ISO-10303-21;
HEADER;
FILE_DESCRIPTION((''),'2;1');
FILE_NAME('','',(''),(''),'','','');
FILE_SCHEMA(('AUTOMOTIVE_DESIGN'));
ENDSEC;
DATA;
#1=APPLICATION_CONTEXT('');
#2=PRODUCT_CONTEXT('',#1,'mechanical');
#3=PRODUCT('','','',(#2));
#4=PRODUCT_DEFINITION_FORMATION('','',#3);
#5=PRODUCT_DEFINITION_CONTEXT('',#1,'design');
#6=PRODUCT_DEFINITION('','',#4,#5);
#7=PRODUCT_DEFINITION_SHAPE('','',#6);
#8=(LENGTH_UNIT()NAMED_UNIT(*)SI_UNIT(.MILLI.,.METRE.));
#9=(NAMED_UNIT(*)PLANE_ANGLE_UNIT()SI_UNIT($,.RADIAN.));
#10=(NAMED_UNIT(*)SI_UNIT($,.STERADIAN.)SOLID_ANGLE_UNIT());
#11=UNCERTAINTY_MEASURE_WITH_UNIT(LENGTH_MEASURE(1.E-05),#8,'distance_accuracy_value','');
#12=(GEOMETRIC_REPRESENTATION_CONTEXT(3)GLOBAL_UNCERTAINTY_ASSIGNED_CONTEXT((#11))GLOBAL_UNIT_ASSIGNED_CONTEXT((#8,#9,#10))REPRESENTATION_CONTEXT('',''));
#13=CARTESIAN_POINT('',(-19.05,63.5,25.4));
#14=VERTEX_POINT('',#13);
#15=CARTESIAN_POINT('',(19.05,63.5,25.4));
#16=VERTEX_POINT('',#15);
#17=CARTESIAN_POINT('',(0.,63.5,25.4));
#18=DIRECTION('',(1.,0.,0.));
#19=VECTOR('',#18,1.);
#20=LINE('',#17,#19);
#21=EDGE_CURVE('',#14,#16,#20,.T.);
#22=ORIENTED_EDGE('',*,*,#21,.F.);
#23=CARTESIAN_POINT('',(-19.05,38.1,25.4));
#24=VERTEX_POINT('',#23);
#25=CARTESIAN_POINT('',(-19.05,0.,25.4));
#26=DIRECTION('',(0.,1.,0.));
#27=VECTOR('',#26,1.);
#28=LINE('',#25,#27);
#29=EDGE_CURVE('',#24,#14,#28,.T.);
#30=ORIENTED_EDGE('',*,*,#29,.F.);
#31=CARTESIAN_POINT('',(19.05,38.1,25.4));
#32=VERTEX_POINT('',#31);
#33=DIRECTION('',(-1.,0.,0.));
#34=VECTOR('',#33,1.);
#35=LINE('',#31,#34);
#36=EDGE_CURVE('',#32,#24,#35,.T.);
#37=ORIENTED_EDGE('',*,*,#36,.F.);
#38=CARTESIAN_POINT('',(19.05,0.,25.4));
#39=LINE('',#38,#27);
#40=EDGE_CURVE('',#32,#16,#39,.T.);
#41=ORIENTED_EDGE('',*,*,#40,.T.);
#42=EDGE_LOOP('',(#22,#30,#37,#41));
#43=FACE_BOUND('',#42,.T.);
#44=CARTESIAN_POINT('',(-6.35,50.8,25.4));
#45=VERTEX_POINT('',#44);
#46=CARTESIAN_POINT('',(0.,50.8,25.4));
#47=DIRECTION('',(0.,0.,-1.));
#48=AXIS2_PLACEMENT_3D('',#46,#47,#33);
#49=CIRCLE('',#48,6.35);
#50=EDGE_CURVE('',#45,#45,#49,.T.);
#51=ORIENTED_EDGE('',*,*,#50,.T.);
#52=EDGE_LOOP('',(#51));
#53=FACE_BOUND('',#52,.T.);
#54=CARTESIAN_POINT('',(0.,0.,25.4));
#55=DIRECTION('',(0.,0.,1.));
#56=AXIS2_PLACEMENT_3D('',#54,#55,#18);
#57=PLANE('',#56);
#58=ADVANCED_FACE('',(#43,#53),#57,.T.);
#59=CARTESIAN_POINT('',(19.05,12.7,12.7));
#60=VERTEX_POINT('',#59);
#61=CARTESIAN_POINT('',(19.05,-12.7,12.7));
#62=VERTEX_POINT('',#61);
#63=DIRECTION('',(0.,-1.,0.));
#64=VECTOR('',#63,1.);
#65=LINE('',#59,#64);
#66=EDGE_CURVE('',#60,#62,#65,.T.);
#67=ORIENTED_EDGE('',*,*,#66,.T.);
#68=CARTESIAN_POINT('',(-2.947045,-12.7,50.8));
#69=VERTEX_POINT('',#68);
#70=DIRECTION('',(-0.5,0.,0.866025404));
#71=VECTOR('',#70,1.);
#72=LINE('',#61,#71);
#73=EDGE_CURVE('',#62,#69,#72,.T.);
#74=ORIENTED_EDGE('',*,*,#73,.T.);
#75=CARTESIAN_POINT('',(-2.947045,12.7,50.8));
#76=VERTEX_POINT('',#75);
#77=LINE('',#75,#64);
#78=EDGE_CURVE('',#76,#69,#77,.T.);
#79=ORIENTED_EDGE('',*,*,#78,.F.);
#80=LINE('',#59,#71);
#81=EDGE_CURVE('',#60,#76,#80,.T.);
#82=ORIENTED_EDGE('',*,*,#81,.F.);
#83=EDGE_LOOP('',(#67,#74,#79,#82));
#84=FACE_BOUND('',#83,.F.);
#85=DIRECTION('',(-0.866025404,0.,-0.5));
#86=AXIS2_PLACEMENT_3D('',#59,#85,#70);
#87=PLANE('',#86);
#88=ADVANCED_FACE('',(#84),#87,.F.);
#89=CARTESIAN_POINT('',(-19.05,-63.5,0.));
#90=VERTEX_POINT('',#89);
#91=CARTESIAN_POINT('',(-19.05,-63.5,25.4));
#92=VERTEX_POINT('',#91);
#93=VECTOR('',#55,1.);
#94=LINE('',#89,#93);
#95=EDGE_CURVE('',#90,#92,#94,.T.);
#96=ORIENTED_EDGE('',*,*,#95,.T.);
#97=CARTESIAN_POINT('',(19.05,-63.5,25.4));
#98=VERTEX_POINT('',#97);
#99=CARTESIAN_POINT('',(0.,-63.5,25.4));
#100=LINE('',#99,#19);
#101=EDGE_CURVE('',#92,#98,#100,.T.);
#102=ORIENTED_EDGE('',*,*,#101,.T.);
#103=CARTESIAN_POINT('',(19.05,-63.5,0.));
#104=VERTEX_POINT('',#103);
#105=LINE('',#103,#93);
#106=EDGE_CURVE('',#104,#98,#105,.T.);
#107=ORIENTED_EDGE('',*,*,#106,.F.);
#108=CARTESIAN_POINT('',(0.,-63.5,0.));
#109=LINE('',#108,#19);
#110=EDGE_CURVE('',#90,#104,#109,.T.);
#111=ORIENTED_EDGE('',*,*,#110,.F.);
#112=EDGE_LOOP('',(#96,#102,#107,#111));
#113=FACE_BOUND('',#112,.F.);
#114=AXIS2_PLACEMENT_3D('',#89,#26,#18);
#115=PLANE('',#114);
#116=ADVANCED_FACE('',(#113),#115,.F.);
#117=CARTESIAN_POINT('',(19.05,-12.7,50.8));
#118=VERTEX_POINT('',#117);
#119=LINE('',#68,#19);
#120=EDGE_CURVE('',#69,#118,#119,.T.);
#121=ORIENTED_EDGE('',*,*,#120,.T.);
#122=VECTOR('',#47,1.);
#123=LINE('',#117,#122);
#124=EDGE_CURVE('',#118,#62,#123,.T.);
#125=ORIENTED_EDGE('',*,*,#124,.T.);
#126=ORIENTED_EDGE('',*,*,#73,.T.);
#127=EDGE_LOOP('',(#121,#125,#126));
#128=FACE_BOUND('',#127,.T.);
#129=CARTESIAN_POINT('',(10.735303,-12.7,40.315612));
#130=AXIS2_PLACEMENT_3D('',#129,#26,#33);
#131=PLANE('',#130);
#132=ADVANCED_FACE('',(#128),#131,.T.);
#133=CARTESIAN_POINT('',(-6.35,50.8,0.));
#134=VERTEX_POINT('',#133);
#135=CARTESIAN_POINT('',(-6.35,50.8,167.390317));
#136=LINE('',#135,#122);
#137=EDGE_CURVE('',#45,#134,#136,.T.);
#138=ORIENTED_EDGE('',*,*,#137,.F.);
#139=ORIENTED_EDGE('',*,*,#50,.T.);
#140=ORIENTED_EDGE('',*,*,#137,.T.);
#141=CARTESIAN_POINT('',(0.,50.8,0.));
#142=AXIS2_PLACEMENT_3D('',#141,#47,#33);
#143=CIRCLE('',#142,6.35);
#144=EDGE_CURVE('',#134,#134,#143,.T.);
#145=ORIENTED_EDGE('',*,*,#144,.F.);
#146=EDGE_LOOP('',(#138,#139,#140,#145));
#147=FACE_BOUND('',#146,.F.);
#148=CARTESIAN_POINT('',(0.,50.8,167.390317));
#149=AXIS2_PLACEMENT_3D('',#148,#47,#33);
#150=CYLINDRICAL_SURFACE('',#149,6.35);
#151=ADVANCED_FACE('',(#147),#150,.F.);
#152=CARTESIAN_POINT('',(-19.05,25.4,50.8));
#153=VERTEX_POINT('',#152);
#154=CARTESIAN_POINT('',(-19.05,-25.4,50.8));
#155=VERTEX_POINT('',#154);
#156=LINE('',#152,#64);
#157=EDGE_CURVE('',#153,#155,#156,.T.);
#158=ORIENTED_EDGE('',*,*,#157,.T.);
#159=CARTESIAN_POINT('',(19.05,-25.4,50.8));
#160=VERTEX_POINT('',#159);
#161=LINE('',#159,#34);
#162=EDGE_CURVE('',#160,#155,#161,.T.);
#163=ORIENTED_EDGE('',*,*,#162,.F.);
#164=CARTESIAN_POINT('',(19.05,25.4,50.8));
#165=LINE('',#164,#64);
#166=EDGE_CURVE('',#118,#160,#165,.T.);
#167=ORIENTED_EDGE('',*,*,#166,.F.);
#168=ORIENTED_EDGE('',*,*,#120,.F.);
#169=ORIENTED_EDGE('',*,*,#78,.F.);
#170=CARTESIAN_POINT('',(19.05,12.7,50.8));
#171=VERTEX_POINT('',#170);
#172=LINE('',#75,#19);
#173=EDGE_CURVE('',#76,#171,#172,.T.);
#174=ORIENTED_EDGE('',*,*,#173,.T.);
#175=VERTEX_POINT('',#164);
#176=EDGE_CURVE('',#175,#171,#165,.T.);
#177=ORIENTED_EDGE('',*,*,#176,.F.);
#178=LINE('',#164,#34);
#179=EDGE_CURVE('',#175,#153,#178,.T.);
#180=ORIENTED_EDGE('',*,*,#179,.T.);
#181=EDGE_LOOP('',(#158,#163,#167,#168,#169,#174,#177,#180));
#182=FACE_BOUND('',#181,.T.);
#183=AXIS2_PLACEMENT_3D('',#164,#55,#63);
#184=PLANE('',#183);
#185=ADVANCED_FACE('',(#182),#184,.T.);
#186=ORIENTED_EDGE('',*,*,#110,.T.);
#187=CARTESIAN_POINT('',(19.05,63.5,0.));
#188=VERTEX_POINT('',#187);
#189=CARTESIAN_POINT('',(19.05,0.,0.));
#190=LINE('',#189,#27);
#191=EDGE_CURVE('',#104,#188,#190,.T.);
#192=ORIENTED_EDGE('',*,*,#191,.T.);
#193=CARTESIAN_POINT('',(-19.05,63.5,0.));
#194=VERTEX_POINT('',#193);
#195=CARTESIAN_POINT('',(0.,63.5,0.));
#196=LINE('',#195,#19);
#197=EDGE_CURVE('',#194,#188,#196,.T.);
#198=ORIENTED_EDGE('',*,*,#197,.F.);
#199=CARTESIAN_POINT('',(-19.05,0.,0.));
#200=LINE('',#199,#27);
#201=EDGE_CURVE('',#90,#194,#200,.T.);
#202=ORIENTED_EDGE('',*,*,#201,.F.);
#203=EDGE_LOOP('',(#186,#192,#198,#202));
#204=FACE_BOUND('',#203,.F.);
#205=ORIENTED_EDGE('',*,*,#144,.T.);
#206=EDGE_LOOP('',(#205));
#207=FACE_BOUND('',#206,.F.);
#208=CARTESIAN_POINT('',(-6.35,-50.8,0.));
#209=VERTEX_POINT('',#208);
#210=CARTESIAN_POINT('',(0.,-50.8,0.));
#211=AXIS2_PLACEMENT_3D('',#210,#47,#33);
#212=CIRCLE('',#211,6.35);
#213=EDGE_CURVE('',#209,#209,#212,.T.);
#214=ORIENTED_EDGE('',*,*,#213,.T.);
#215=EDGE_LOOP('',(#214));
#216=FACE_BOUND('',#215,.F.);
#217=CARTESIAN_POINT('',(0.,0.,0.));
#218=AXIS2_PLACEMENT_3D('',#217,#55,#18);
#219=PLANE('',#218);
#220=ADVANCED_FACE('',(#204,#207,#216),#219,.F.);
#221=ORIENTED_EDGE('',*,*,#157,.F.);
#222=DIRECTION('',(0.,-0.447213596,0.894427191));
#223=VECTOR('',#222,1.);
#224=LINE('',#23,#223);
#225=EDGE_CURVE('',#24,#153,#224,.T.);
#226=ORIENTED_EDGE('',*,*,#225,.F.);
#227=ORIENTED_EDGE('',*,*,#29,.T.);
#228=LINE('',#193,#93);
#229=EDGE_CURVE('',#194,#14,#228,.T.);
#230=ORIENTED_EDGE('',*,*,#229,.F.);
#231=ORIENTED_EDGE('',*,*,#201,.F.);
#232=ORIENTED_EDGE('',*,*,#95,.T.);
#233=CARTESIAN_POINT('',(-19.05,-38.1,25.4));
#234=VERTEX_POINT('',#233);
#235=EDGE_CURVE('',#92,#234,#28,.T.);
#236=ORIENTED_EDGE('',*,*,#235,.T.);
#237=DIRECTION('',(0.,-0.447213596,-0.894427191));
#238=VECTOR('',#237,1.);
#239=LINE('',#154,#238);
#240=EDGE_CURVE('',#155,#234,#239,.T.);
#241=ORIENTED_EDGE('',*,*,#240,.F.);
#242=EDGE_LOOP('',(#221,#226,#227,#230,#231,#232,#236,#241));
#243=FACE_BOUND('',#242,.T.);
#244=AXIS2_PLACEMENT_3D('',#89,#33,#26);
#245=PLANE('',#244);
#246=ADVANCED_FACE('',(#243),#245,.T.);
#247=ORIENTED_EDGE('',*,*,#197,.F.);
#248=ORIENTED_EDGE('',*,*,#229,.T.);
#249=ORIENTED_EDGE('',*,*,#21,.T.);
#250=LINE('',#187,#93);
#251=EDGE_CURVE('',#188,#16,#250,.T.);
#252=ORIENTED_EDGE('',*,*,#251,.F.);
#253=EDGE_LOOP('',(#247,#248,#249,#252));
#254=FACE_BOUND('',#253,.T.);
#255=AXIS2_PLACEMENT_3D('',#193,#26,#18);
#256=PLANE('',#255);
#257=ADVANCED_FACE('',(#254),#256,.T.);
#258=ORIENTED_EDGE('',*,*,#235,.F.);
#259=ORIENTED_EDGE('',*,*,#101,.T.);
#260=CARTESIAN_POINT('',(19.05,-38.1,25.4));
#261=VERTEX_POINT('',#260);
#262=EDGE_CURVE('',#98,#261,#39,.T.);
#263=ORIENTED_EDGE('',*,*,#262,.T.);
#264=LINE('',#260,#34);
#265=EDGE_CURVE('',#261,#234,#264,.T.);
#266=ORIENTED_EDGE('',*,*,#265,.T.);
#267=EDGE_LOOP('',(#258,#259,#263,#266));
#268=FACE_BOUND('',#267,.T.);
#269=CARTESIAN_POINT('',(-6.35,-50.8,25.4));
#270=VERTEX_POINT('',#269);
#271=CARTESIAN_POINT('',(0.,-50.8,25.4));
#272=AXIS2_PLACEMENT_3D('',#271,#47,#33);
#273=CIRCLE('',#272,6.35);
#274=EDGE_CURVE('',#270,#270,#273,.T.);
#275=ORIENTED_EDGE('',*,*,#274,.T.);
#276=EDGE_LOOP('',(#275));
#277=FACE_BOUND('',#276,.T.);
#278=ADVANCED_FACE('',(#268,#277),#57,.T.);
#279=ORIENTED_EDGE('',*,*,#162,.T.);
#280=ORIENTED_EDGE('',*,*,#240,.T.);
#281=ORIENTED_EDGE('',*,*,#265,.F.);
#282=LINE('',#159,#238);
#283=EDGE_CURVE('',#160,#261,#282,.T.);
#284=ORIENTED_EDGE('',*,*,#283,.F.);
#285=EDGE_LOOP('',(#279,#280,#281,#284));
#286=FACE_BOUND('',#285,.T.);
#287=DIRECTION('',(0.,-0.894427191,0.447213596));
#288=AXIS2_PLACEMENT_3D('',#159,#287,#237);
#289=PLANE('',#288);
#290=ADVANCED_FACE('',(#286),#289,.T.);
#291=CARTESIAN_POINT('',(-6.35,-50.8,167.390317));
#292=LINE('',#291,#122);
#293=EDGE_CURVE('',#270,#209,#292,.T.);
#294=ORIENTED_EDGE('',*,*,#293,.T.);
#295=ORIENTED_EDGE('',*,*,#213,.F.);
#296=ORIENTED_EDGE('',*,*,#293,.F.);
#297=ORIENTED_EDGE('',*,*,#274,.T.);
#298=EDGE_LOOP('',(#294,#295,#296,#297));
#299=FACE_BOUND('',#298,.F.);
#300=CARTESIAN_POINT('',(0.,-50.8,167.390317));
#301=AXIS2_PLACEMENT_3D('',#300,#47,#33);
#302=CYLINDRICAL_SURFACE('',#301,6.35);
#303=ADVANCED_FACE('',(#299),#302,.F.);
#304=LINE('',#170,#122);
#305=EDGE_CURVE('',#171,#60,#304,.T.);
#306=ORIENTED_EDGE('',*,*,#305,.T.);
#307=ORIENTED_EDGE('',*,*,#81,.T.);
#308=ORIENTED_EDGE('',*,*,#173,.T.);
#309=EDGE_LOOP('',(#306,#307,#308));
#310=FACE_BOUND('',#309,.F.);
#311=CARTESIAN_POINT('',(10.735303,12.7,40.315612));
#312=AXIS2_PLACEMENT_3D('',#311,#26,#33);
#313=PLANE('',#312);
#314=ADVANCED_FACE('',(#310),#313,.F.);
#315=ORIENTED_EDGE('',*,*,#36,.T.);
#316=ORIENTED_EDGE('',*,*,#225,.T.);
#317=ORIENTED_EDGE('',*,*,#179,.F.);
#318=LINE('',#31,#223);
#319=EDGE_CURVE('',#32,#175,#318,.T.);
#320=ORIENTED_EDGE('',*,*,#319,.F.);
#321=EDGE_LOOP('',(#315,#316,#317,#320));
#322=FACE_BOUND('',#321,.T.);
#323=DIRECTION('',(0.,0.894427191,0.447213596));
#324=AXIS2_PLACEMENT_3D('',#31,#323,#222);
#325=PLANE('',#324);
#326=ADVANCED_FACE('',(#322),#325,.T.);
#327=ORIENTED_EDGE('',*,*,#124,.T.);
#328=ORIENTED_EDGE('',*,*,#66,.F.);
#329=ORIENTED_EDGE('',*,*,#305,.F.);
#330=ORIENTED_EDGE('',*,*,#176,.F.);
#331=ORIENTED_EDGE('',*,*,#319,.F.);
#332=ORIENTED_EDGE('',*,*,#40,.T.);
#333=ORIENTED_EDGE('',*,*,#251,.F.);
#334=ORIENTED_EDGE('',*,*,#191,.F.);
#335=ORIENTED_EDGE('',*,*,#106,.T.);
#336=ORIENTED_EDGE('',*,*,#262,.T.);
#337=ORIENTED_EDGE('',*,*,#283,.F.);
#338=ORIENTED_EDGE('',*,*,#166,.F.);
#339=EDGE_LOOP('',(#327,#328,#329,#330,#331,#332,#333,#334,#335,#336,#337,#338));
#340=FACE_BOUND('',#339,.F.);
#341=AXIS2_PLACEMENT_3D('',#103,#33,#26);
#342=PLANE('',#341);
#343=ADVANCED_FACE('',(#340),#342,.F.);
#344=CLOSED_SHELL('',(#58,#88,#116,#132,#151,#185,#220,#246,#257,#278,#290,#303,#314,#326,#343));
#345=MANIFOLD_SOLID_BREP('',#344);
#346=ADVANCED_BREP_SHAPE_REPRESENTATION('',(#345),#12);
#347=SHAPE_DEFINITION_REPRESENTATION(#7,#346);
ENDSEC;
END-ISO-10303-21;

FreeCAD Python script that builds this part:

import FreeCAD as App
import Part
import Sketcher
Q = App.Units.Quantity


def add_polygon(sketch, points):
    """Adds a closed chain of lines whose ends are joined by coincident constraints."""
    first, n = sketch.GeometryCount, len(points)
    for a, b in zip(points, points[1:] + points[:1]):
        sketch.addGeometry(Part.LineSegment(App.Vector(*a, 0), App.Vector(*b, 0)), False)
    for i in range(n):
        sketch.addConstraint(Sketcher.Constraint("Coincident", first + i, 2, first + (i + 1) % n, 1))

doc = App.newDocument("Part")
body = doc.addObject("PartDesign::Body", "Body")

# Sketch on XY plane
sketch1 = body.newObject("Sketcher::SketchObject", "Sketch")
sketch1.AttachmentSupport = (doc.getObject("XY_Plane"), [""])
sketch1.MapMode = "FlatFace"
add_polygon(sketch1, [(-19.05, 63.5), (-19.05, -63.5), (19.05, -63.5), (19.05, 63.5)])  # lines 0-3
sketch1.addConstraint([
    Sketcher.Constraint("Vertical", 0),
    Sketcher.Constraint("Horizontal", 1),
    Sketcher.Constraint("Vertical", 2),
    Sketcher.Constraint("Horizontal", 3),
    Sketcher.Constraint("Symmetric", 0, 2, 2, 2, -1, 1),
    Sketcher.Constraint("DistanceY", 0, 2, 0, 1, Q("5 in")),
    Sketcher.Constraint("DistanceX", 1, 1, 1, 2, Q("1.5 in")),
])
pad1 = body.newObject("PartDesign::Pad", "Pad")
pad1.Profile = sketch1
pad1.Length = Q("1 in")

# Sketch on YZ plane
sketch2 = body.newObject("Sketcher::SketchObject", "Sketch001")
sketch2.AttachmentSupport = (doc.getObject("YZ_Plane"), [""])
sketch2.MapMode = "FlatFace"
sketch2.AttachmentOffset = App.Placement(App.Vector(0, 0, 0.75 * 25.4), App.Rotation())
add_polygon(sketch2, [(-25.4, 50.8), (-38.1, 25.4), (38.1, 25.4), (25.4, 50.8)])  # lines 0-3
sketch2.addConstraint([
    Sketcher.Constraint("Horizontal", 1),
    Sketcher.Constraint("Horizontal", 3),
    Sketcher.Constraint("Equal", 0, 2),
    Sketcher.Constraint("DistanceX", 1, 1, 1, 2, Q("3 in")),
    Sketcher.Constraint("DistanceX", 3, 2, 3, 1, Q("2 in")),
    Sketcher.Constraint("DistanceY", -1, 1, 0, 2, Q("1 in")),
    Sketcher.Constraint("DistanceX", -1, 1, 2, 2, Q("1 in")),
    Sketcher.Constraint("DistanceY", -1, 1, 2, 2, Q("2 in")),
])
pad2 = body.newObject("PartDesign::Pad", "Pad001")
pad2.Profile = sketch2
pad2.Length = Q("1.5 in")
pad2.Reversed = True

# Sketch on XZ plane
sketch3 = body.newObject("Sketcher::SketchObject", "Sketch002")
sketch3.AttachmentSupport = (doc.getObject("XZ_Plane"), [""])
sketch3.MapMode = "FlatFace"
sketch3.AttachmentOffset = App.Placement(App.Vector(0, 0, -0.5 * 25.4), App.Rotation())
add_polygon(sketch3, [(-2.947045, 50.8), (19.05, 50.8), (19.05, 12.7)])  # lines 0-2
sketch3.addConstraint([
    Sketcher.Constraint("Horizontal", 0),
    Sketcher.Constraint("Vertical", 1),
    Sketcher.Constraint("DistanceY", 1, 2, 1, 1, Q("1.5 in")),
    Sketcher.Constraint("DistanceY", -1, 1, 0, 2, Q("2 in")),
    Sketcher.Constraint("Angle", 2, Q("120 deg")),
    Sketcher.Constraint("DistanceX", -1, 1, 0, 2, Q("0.75 in")),
])
pocket1 = body.newObject("PartDesign::Pocket", "Pocket")
pocket1.Profile = sketch3
pocket1.Length = Q("1 in")
pocket1.Reversed = True

# Sketch on XY plane
sketch4 = body.newObject("Sketcher::SketchObject", "Sketch003")
sketch4.AttachmentSupport = (doc.getObject("XY_Plane"), [""])
sketch4.MapMode = "FlatFace"
sketch4.AttachmentOffset = App.Placement(App.Vector(0, 0, 1 * 25.4), App.Rotation())
sketch4.addGeometry([
    Part.Circle(App.Vector(0, -50.8, 0), App.Vector(0, 0, 1), 6.35),
    Part.Circle(App.Vector(0, 50.8, 0), App.Vector(0, 0, 1), 6.35),
], False)
sketch4.addConstraint([
    Sketcher.Constraint("Equal", 0, 1),
    Sketcher.Constraint("Symmetric", 0, 3, 1, 3, -1, 1),
    Sketcher.Constraint("PointOnObject", 0, 3, -2),
    Sketcher.Constraint("Diameter", 0, Q("0.5 in")),
    Sketcher.Constraint("DistanceY", 0, 3, -1, 1, Q("2 in")),
])
doc.recompute()
hole = body.newObject("PartDesign::Hole", "Hole")
hole.Profile = sketch4
hole.ThreadType = "None"
hole.Diameter = Q("0.5 in")
hole.DepthType = "ThroughAll"

doc.recompute()
